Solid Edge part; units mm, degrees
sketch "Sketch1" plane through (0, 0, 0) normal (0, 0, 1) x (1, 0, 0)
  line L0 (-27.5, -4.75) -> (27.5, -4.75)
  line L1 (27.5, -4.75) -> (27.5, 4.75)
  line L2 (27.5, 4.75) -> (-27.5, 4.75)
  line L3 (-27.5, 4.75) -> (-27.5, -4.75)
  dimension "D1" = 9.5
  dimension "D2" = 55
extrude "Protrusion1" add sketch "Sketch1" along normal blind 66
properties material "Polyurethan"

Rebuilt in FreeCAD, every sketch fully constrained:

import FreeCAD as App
import Part
import Sketcher
Q = App.Units.Quantity

doc = App.newDocument("Part")
body = doc.addObject("PartDesign::Body", "Body")

sketch1 = body.newObject("Sketcher::SketchObject", "Sketch")
sketch1.AttachmentSupport = (doc.getObject("XY_Plane"), [""])
sketch1.MapMode = "FlatFace"
sketch1.addGeometry([
    Part.LineSegment(App.Vector(-28, 5, 0), App.Vector(-28, -5, 0)),
    Part.LineSegment(App.Vector(-28, -5, 0), App.Vector(28, -5, 0)),
    Part.LineSegment(App.Vector(28, -5, 0), App.Vector(28, 5, 0)),
    Part.LineSegment(App.Vector(28, 5, 0), App.Vector(-28, 5, 0)),
], False)
sketch1.addConstraint([
    Sketcher.Constraint("Coincident", 0, 2, 1, 1),
    Sketcher.Constraint("Coincident", 1, 2, 2, 1),
    Sketcher.Constraint("Coincident", 2, 2, 3, 1),
    Sketcher.Constraint("Coincident", 3, 2, 0, 1),
    Sketcher.Constraint("Vertical", 0),
    Sketcher.Constraint("Horizontal", 1),
    Sketcher.Constraint("Vertical", 2),
    Sketcher.Constraint("Horizontal", 3),
    Sketcher.Constraint("Symmetric", 0, 2, 2, 2, -1, 1),
    Sketcher.Constraint("DistanceX", 0, 2, -1, 1, Q("27.5 mm")),
    Sketcher.Constraint("DistanceY", 0, 2, 0, 1, Q("9.5 mm")),
])
pad1 = body.newObject("PartDesign::Pad", "Pad")
pad1.Profile = sketch1
pad1.Length = 66

doc.recompute()
